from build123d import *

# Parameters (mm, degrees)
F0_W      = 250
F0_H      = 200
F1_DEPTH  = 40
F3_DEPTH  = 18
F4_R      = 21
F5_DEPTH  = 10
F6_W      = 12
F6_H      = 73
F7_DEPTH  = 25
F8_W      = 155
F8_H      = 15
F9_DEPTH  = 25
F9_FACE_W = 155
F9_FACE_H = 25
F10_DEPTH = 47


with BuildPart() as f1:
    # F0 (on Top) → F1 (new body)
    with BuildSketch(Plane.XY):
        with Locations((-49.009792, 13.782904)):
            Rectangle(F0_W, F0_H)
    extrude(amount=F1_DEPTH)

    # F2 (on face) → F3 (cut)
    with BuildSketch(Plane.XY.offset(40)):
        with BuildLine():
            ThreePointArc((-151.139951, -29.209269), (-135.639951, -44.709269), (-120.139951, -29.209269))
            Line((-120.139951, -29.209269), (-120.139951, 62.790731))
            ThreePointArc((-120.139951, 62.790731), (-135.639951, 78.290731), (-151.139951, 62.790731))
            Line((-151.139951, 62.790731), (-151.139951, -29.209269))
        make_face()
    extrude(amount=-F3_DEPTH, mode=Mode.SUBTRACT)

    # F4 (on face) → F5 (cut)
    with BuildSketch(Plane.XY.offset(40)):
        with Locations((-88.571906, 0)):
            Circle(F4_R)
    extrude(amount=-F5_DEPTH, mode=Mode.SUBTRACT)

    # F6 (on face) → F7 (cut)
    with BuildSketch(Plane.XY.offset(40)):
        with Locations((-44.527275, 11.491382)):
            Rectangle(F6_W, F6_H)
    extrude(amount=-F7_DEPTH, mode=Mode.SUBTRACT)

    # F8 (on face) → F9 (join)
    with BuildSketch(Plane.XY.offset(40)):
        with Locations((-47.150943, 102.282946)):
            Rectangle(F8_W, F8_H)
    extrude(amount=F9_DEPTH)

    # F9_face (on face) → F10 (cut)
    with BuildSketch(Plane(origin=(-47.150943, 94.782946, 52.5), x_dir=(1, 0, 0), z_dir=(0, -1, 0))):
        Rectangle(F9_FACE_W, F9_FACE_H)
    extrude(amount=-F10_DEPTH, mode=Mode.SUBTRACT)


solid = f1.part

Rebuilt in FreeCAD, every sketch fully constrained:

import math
import FreeCAD as App
import Part
import Sketcher
Q = App.Units.Quantity

doc = App.newDocument("Part")
body = doc.addObject("PartDesign::Body", "Body")

sketch1 = body.newObject("Sketcher::SketchObject", "Sketch")
sketch1.AttachmentSupport = (doc.getObject("XY_Plane"), [""])
sketch1.MapMode = "FlatFace"
sketch1.addGeometry([
    Part.LineSegment(App.Vector(-174, 114, 0), App.Vector(-174, -86, 0)),
    Part.LineSegment(App.Vector(-174, -86, 0), App.Vector(76, -86, 0)),
    Part.LineSegment(App.Vector(76, -86, 0), App.Vector(76, 114, 0)),
    Part.LineSegment(App.Vector(76, 114, 0), App.Vector(-174, 114, 0)),
], False)
sketch1.addConstraint([
    Sketcher.Constraint("Coincident", 0, 2, 1, 1),
    Sketcher.Constraint("Coincident", 1, 2, 2, 1),
    Sketcher.Constraint("Coincident", 2, 2, 3, 1),
    Sketcher.Constraint("Coincident", 3, 2, 0, 1),
    Sketcher.Constraint("Vertical", 0),
    Sketcher.Constraint("Horizontal", 1),
    Sketcher.Constraint("Vertical", 2),
    Sketcher.Constraint("Horizontal", 3),
    Sketcher.Constraint("DistanceX", 1, 1, 1, 2, Q("250 mm")),
    Sketcher.Constraint("DistanceY", 0, 2, 0, 1, Q("200 mm")),
    Sketcher.Constraint("DistanceX", 0, 2, -1, 1, Q("174.009792 mm")),
    Sketcher.Constraint("DistanceY", 0, 2, -1, 1, Q("86.217096 mm")),
])
pad1 = body.newObject("PartDesign::Pad", "Pad")
pad1.Profile = sketch1
pad1.Length = 40

sketch2 = body.newObject("Sketcher::SketchObject", "Sketch001")
sketch2.AttachmentSupport = (doc.getObject("XY_Plane"), [""])
sketch2.MapMode = "FlatFace"
sketch2.AttachmentOffset = App.Placement(App.Vector(0, 0, 40), App.Rotation())
sketch2.addGeometry([
    Part.ArcOfCircle(Part.Circle(App.Vector(-136, -29, 0), App.Vector(0, 0, 1), 16), math.radians(180), math.radians(360)),
    Part.LineSegment(App.Vector(-120, -29, 0), App.Vector(-120, 63, 0)),
    Part.ArcOfCircle(Part.Circle(App.Vector(-136, 63, 0), App.Vector(0, 0, 1), 16), math.radians(0), math.radians(180)),
    Part.LineSegment(App.Vector(-151, 63, 0), App.Vector(-151, -29, 0)),
], False)
sketch2.addConstraint([
    Sketcher.Constraint("Tangent", 0, 2, 1, 1),
    Sketcher.Constraint("Tangent", 1, 2, 2, 1),
    Sketcher.Constraint("Tangent", 2, 2, 3, 1),
    Sketcher.Constraint("Tangent", 3, 2, 0, 1),
    Sketcher.Constraint("Vertical", 1),
    Sketcher.Constraint("Vertical", 3),
    Sketcher.Constraint("Radius", 0, Q("15.5 mm")),
    Sketcher.Constraint("DistanceY", 1, 1, 1, 2, Q("92 mm")),
    Sketcher.Constraint("DistanceX", 0, 3, -1, 1, Q("135.639951 mm")),
    Sketcher.Constraint("DistanceY", 0, 3, -1, 1, Q("29.209269 mm")),
])
pocket1 = body.newObject("PartDesign::Pocket", "Pocket")
pocket1.Profile = sketch2
pocket1.Length = 18

sketch3 = body.newObject("Sketcher::SketchObject", "Sketch002")
sketch3.AttachmentSupport = (doc.getObject("XY_Plane"), [""])
sketch3.MapMode = "FlatFace"
sketch3.AttachmentOffset = App.Placement(App.Vector(0, 0, 40), App.Rotation())
sketch3.addGeometry(Part.Circle(App.Vector(-89, 0, 0), App.Vector(0, 0, 1), 21), False)
sketch3.addConstraint([
    Sketcher.Constraint("PointOnObject", 0, 3, -1),
    Sketcher.Constraint("Diameter", 0, Q("42 mm")),
    Sketcher.Constraint("DistanceX", 0, 3, -1, 1, Q("88.571906 mm")),
])
pocket2 = body.newObject("PartDesign::Pocket", "Pocket001")
pocket2.Profile = sketch3
pocket2.Length = 10

sketch4 = body.newObject("Sketcher::SketchObject", "Sketch003")
sketch4.AttachmentSupport = (doc.getObject("XY_Plane"), [""])
sketch4.MapMode = "FlatFace"
sketch4.AttachmentOffset = App.Placement(App.Vector(0, 0, 40), App.Rotation())
sketch4.addGeometry([
    Part.LineSegment(App.Vector(-51, 48, 0), App.Vector(-51, -25, 0)),
    Part.LineSegment(App.Vector(-51, -25, 0), App.Vector(-39, -25, 0)),
    Part.LineSegment(App.Vector(-39, -25, 0), App.Vector(-39, 48, 0)),
    Part.LineSegment(App.Vector(-39, 48, 0), App.Vector(-51, 48, 0)),
], False)
sketch4.addConstraint([
    Sketcher.Constraint("Coincident", 0, 2, 1, 1),
    Sketcher.Constraint("Coincident", 1, 2, 2, 1),
    Sketcher.Constraint("Coincident", 2, 2, 3, 1),
    Sketcher.Constraint("Coincident", 3, 2, 0, 1),
    Sketcher.Constraint("Vertical", 0),
    Sketcher.Constraint("Horizontal", 1),
    Sketcher.Constraint("Vertical", 2),
    Sketcher.Constraint("Horizontal", 3),
    Sketcher.Constraint("DistanceX", 1, 1, 1, 2, Q("12 mm")),
    Sketcher.Constraint("DistanceY", 0, 2, 0, 1, Q("73 mm")),
    Sketcher.Constraint("DistanceX", 0, 2, -1, 1, Q("50.527275 mm")),
    Sketcher.Constraint("DistanceY", 0, 2, -1, 1, Q("25.008618 mm")),
])
pocket3 = body.newObject("PartDesign::Pocket", "Pocket002")
pocket3.Profile = sketch4
pocket3.Length = 25

sketch5 = body.newObject("Sketcher::SketchObject", "Sketch004")
sketch5.AttachmentSupport = (doc.getObject("XY_Plane"), [""])
sketch5.MapMode = "FlatFace"
sketch5.AttachmentOffset = App.Placement(App.Vector(0, 0, 40), App.Rotation())
sketch5.addGeometry([
    Part.LineSegment(App.Vector(-125, 110, 0), App.Vector(-125, 95, 0)),
    Part.LineSegment(App.Vector(-125, 95, 0), App.Vector(30, 95, 0)),
    Part.LineSegment(App.Vector(30, 95, 0), App.Vector(30, 110, 0)),
    Part.LineSegment(App.Vector(30, 110, 0), App.Vector(-125, 110, 0)),
], False)
sketch5.addConstraint([
    Sketcher.Constraint("Coincident", 0, 2, 1, 1),
    Sketcher.Constraint("Coincident", 1, 2, 2, 1),
    Sketcher.Constraint("Coincident", 2, 2, 3, 1),
    Sketcher.Constraint("Coincident", 3, 2, 0, 1),
    Sketcher.Constraint("Vertical", 0),
    Sketcher.Constraint("Horizontal", 1),
    Sketcher.Constraint("Vertical", 2),
    Sketcher.Constraint("Horizontal", 3),
    Sketcher.Constraint("DistanceX", 1, 1, 1, 2, Q("155 mm")),
    Sketcher.Constraint("DistanceY", 0, 2, 0, 1, Q("15 mm")),
    Sketcher.Constraint("DistanceX", 0, 2, -1, 1, Q("124.650943 mm")),
    Sketcher.Constraint("DistanceY", -1, 1, 0, 2, Q("94.782946 mm")),
])
pad2 = body.newObject("PartDesign::Pad", "Pad001")
pad2.Profile = sketch5
pad2.Length = 25

sketch6 = body.newObject("Sketcher::SketchObject", "Sketch005")
sketch6.AttachmentSupport = (doc.getObject("XZ_Plane"), [""])
sketch6.MapMode = "FlatFace"
sketch6.AttachmentOffset = App.Placement(App.Vector(0, 0, -94.782946), App.Rotation())
sketch6.addGeometry([
    Part.LineSegment(App.Vector(-125, 65, 0), App.Vector(-125, 40, 0)),
    Part.LineSegment(App.Vector(-125, 40, 0), App.Vector(30, 40, 0)),
    Part.LineSegment(App.Vector(30, 40, 0), App.Vector(30, 65, 0)),
    Part.LineSegment(App.Vector(30, 65, 0), App.Vector(-125, 65, 0)),
], False)
sketch6.addConstraint([
    Sketcher.Constraint("Coincident", 0, 2, 1, 1),
    Sketcher.Constraint("Coincident", 1, 2, 2, 1),
    Sketcher.Constraint("Coincident", 2, 2, 3, 1),
    Sketcher.Constraint("Coincident", 3, 2, 0, 1),
    Sketcher.Constraint("Vertical", 0),
    Sketcher.Constraint("Horizontal", 1),
    Sketcher.Constraint("Vertical", 2),
    Sketcher.Constraint("Horizontal", 3),
    Sketcher.Constraint("DistanceX", 1, 1, 1, 2, Q("155 mm")),
    Sketcher.Constraint("DistanceY", 0, 2, 0, 1, Q("25 mm")),
    Sketcher.Constraint("DistanceY", -1, 1, 0, 2, Q("40 mm")),
    Sketcher.Constraint("DistanceX", 0, 2, -1, 1, Q("124.650943 mm")),
])
pocket4 = body.newObject("PartDesign::Pocket", "Pocket003")
pocket4.Profile = sketch6
pocket4.Length = 47

doc.recompute()
